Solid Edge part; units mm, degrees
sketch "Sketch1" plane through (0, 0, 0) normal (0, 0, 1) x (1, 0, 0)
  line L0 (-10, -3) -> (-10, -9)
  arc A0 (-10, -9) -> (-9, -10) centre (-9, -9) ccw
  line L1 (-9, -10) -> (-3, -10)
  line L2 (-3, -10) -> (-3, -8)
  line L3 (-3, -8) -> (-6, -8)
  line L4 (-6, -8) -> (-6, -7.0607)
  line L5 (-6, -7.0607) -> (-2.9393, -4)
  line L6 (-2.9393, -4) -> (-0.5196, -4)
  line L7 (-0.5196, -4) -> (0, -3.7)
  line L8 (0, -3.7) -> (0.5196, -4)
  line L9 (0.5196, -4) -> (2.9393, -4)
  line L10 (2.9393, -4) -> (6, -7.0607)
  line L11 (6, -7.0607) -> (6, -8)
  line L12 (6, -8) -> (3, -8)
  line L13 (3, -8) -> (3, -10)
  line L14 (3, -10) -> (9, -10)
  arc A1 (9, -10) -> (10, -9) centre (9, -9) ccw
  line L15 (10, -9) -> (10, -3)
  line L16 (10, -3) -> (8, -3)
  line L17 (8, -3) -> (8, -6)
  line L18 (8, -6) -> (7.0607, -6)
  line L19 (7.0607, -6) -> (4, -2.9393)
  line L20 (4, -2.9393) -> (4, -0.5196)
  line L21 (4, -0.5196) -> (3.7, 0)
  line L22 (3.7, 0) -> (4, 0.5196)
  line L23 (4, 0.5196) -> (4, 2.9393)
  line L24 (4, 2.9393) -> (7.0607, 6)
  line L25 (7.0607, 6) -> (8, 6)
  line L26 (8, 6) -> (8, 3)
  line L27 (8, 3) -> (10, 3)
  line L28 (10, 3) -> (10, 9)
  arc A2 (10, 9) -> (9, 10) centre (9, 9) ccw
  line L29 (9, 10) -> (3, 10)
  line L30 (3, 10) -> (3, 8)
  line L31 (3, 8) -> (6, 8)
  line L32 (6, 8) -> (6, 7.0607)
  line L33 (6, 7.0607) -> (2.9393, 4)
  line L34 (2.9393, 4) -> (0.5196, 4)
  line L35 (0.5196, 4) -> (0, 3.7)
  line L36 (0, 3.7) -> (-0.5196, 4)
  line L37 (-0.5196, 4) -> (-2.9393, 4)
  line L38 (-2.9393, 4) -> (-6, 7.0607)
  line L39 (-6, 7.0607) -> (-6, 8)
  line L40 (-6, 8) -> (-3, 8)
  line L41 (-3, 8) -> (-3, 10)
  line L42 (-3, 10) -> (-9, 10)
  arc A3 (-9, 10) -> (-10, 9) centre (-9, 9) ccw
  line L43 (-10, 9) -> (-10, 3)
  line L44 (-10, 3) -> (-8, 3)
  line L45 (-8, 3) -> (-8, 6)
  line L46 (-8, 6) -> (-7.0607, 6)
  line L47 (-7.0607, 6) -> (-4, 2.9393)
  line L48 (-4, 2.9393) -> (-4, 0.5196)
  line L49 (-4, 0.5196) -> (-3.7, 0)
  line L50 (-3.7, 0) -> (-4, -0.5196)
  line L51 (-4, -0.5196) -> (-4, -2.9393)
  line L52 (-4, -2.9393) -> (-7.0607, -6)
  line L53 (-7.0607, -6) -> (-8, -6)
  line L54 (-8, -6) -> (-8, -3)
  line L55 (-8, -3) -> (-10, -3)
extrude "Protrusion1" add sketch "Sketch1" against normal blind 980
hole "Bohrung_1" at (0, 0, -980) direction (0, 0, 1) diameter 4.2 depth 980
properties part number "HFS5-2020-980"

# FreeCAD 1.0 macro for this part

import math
import FreeCAD as App
import Part
import Sketcher
from FreeCAD import Vector
Q = App.Units.Quantity

doc = App.newDocument("Part")
params = doc.addObject("Spreadsheet::Sheet", "Params")
for row, (alias, value) in enumerate([
    ("sketch1_radius", "1 mm"),
    ("sketch1_width", "2 mm"),
    ("sketch1_width2", "6 mm"),
    ("sketch1_width3", "3 mm"),
    ("sketch1_length", "0.6 mm"),
    ("pad1_length", "980 mm"),
    ("sketch2_diameter", "4.2 mm"),
    ("hole_diameter", "4.2 mm"),
    ("hole_depth", "980 mm"),
], start=1):
    params.set(f"A{row}", alias)
    params.set(f"B{row}", "=" + value)
    params.setAlias(f"B{row}", alias)

body = doc.addObject("PartDesign::Body", "Body")

sketch1 = body.newObject("Sketcher::SketchObject", "Sketch")
sketch1.AttachmentSupport = (doc.getObject("XY_Plane"), [""])
sketch1.MapMode = "FlatFace"
sketch1.addGeometry([
    Part.LineSegment(Vector(-8, -3, 0), Vector(-10, -3, 0)),
    Part.LineSegment(Vector(-10, -3, 0), Vector(-10, -9, 0)),
    Part.ArcOfCircle(Part.Circle(Vector(-9, -9, 0), Vector(0, 0, 1), 1), math.radians(180), math.radians(270)),
    Part.LineSegment(Vector(-9, -10, 0), Vector(-3, -10, 0)),
    Part.LineSegment(Vector(-3, -10, 0), Vector(-3, -8, 0)),
    Part.LineSegment(Vector(-3, -8, 0), Vector(-6, -8, 0)),
    Part.LineSegment(Vector(-6, -8, 0), Vector(-6, -7.1, 0)),
    Part.LineSegment(Vector(-6, -7.1, 0), Vector(-2.9, -4, 0)),
    Part.LineSegment(Vector(-2.9, -4, 0), Vector(-0.5, -4, 0)),
    Part.LineSegment(Vector(-0.5, -4, 0), Vector(0, -3.7, 0)),
    Part.LineSegment(Vector(0, -3.7, 0), Vector(0.5, -4, 0)),
    Part.LineSegment(Vector(0.5, -4, 0), Vector(2.9, -4, 0)),
    Part.LineSegment(Vector(2.9, -4, 0), Vector(6, -7.1, 0)),
    Part.LineSegment(Vector(6, -7.1, 0), Vector(6, -8, 0)),
    Part.LineSegment(Vector(6, -8, 0), Vector(3, -8, 0)),
    Part.LineSegment(Vector(3, -8, 0), Vector(3, -10, 0)),
    Part.LineSegment(Vector(3, -10, 0), Vector(9, -10, 0)),
    Part.ArcOfCircle(Part.Circle(Vector(9, -9, 0), Vector(0, 0, 1), 1), math.radians(-90), math.radians(0)),
    Part.LineSegment(Vector(10, -9, 0), Vector(10, -3, 0)),
    Part.LineSegment(Vector(10, -3, 0), Vector(8, -3, 0)),
    Part.LineSegment(Vector(8, -3, 0), Vector(8, -6, 0)),
    Part.LineSegment(Vector(8, -6, 0), Vector(7.1, -6, 0)),
    Part.LineSegment(Vector(7.1, -6, 0), Vector(4, -2.9, 0)),
    Part.LineSegment(Vector(4, -2.9, 0), Vector(4, -0.5, 0)),
    Part.LineSegment(Vector(4, -0.5, 0), Vector(3.7, 0, 0)),
    Part.LineSegment(Vector(3.7, 0, 0), Vector(4, 0.5, 0)),
    Part.LineSegment(Vector(4, 0.5, 0), Vector(4, 2.9, 0)),
    Part.LineSegment(Vector(4, 2.9, 0), Vector(7.1, 6, 0)),
    Part.LineSegment(Vector(7.1, 6, 0), Vector(8, 6, 0)),
    Part.LineSegment(Vector(8, 6, 0), Vector(8, 3, 0)),
    Part.LineSegment(Vector(8, 3, 0), Vector(10, 3, 0)),
    Part.LineSegment(Vector(10, 3, 0), Vector(10, 9, 0)),
    Part.ArcOfCircle(Part.Circle(Vector(9, 9, 0), Vector(0, 0, 1), 1), math.radians(0), math.radians(90)),
    Part.LineSegment(Vector(9, 10, 0), Vector(3, 10, 0)),
    Part.LineSegment(Vector(3, 10, 0), Vector(3, 8, 0)),
    Part.LineSegment(Vector(3, 8, 0), Vector(6, 8, 0)),
    Part.LineSegment(Vector(6, 8, 0), Vector(6, 7.1, 0)),
    Part.LineSegment(Vector(6, 7.1, 0), Vector(2.9, 4, 0)),
    Part.LineSegment(Vector(2.9, 4, 0), Vector(0.5, 4, 0)),
    Part.LineSegment(Vector(0.5, 4, 0), Vector(0, 3.7, 0)),
    Part.LineSegment(Vector(0, 3.7, 0), Vector(-0.5, 4, 0)),
    Part.LineSegment(Vector(-0.5, 4, 0), Vector(-2.9, 4, 0)),
    Part.LineSegment(Vector(-2.9, 4, 0), Vector(-6, 7.1, 0)),
    Part.LineSegment(Vector(-6, 7.1, 0), Vector(-6, 8, 0)),
    Part.LineSegment(Vector(-6, 8, 0), Vector(-3, 8, 0)),
    Part.LineSegment(Vector(-3, 8, 0), Vector(-3, 10, 0)),
    Part.LineSegment(Vector(-3, 10, 0), Vector(-9, 10, 0)),
    Part.ArcOfCircle(Part.Circle(Vector(-9, 9, 0), Vector(0, 0, 1), 1), math.radians(90), math.radians(180)),
    Part.LineSegment(Vector(-10, 9, 0), Vector(-10, 3, 0)),
    Part.LineSegment(Vector(-10, 3, 0), Vector(-8, 3, 0)),
    Part.LineSegment(Vector(-8, 3, 0), Vector(-8, 6, 0)),
    Part.LineSegment(Vector(-8, 6, 0), Vector(-7.1, 6, 0)),
    Part.LineSegment(Vector(-7.1, 6, 0), Vector(-4, 2.9, 0)),
    Part.LineSegment(Vector(-4, 2.9, 0), Vector(-4, 0.5, 0)),
    Part.LineSegment(Vector(-4, 0.5, 0), Vector(-3.7, 0, 0)),
    Part.LineSegment(Vector(-3.7, 0, 0), Vector(-4, -0.5, 0)),
    Part.LineSegment(Vector(-4, -0.5, 0), Vector(-4, -2.9, 0)),
    Part.LineSegment(Vector(-4, -2.9, 0), Vector(-7.1, -6, 0)),
    Part.LineSegment(Vector(-7.1, -6, 0), Vector(-8, -6, 0)),
    Part.LineSegment(Vector(-8, -6, 0), Vector(-8, -3, 0)),
], False)
sketch1.addConstraint([
    Sketcher.Constraint("Coincident", 0, 2, 1, 1),
    Sketcher.Constraint("Tangent", 1, 2, 2, 1),
    Sketcher.Constraint("Tangent", 2, 2, 3, 1),
    Sketcher.Constraint("Coincident", 3, 2, 4, 1),
    Sketcher.Constraint("Coincident", 4, 2, 5, 1),
    Sketcher.Constraint("Coincident", 5, 2, 6, 1),
    Sketcher.Constraint("Coincident", 6, 2, 7, 1),
    Sketcher.Constraint("Coincident", 7, 2, 8, 1),
    Sketcher.Constraint("Coincident", 8, 2, 9, 1),
    Sketcher.Constraint("Coincident", 9, 2, 10, 1),
    Sketcher.Constraint("Coincident", 10, 2, 11, 1),
    Sketcher.Constraint("Coincident", 11, 2, 12, 1),
    Sketcher.Constraint("Coincident", 12, 2, 13, 1),
    Sketcher.Constraint("Coincident", 13, 2, 14, 1),
    Sketcher.Constraint("Coincident", 14, 2, 15, 1),
    Sketcher.Constraint("Coincident", 15, 2, 16, 1),
    Sketcher.Constraint("Tangent", 16, 2, 17, 1),
    Sketcher.Constraint("Tangent", 17, 2, 18, 1),
    Sketcher.Constraint("Coincident", 18, 2, 19, 1),
    Sketcher.Constraint("Coincident", 19, 2, 20, 1),
    Sketcher.Constraint("Coincident", 20, 2, 21, 1),
    Sketcher.Constraint("Coincident", 21, 2, 22, 1),
    Sketcher.Constraint("Coincident", 22, 2, 23, 1),
    Sketcher.Constraint("Coincident", 23, 2, 24, 1),
    Sketcher.Constraint("Coincident", 24, 2, 25, 1),
    Sketcher.Constraint("Coincident", 25, 2, 26, 1),
    Sketcher.Constraint("Coincident", 26, 2, 27, 1),
    Sketcher.Constraint("Coincident", 27, 2, 28, 1),
    Sketcher.Constraint("Coincident", 28, 2, 29, 1),
    Sketcher.Constraint("Coincident", 29, 2, 30, 1),
    Sketcher.Constraint("Coincident", 30, 2, 31, 1),
    Sketcher.Constraint("Tangent", 31, 2, 32, 1),
    Sketcher.Constraint("Tangent", 32, 2, 33, 1),
    Sketcher.Constraint("Coincident", 33, 2, 34, 1),
    Sketcher.Constraint("Coincident", 34, 2, 35, 1),
    Sketcher.Constraint("Coincident", 35, 2, 36, 1),
    Sketcher.Constraint("Coincident", 36, 2, 37, 1),
    Sketcher.Constraint("Coincident", 37, 2, 38, 1),
    Sketcher.Constraint("Coincident", 38, 2, 39, 1),
    Sketcher.Constraint("Coincident", 39, 2, 40, 1),
    Sketcher.Constraint("Coincident", 40, 2, 41, 1),
    Sketcher.Constraint("Coincident", 41, 2, 42, 1),
    Sketcher.Constraint("Coincident", 42, 2, 43, 1),
    Sketcher.Constraint("Coincident", 43, 2, 44, 1),
    Sketcher.Constraint("Coincident", 44, 2, 45, 1),
    Sketcher.Constraint("Coincident", 45, 2, 46, 1),
    Sketcher.Constraint("Tangent", 46, 2, 47, 1),
    Sketcher.Constraint("Tangent", 47, 2, 48, 1),
    Sketcher.Constraint("Coincident", 48, 2, 49, 1),
    Sketcher.Constraint("Coincident", 49, 2, 50, 1),
    Sketcher.Constraint("Coincident", 50, 2, 51, 1),
    Sketcher.Constraint("Coincident", 51, 2, 52, 1),
    Sketcher.Constraint("Coincident", 52, 2, 53, 1),
    Sketcher.Constraint("Coincident", 53, 2, 54, 1),
    Sketcher.Constraint("Coincident", 54, 2, 55, 1),
    Sketcher.Constraint("Coincident", 55, 2, 56, 1),
    Sketcher.Constraint("Coincident", 56, 2, 57, 1),
    Sketcher.Constraint("Coincident", 57, 2, 58, 1),
    Sketcher.Constraint("Coincident", 58, 2, 59, 1),
    Sketcher.Constraint("Coincident", 59, 2, 0, 1),
    Sketcher.Constraint("Horizontal", 0),
    Sketcher.Constraint("Vertical", 1),
    Sketcher.Constraint("Horizontal", 3),
    Sketcher.Constraint("Vertical", 4),
    Sketcher.Constraint("Horizontal", 5),
    Sketcher.Constraint("Vertical", 6),
    Sketcher.Constraint("Horizontal", 8),
    Sketcher.Constraint("Horizontal", 11),
    Sketcher.Constraint("Vertical", 13),
    Sketcher.Constraint("Horizontal", 14),
    Sketcher.Constraint("Vertical", 15),
    Sketcher.Constraint("Horizontal", 16),
    Sketcher.Constraint("Vertical", 18),
    Sketcher.Constraint("Horizontal", 19),
    Sketcher.Constraint("Vertical", 20),
    Sketcher.Constraint("Horizontal", 21),
    Sketcher.Constraint("Vertical", 23),
    Sketcher.Constraint("Vertical", 26),
    Sketcher.Constraint("Horizontal", 28),
    Sketcher.Constraint("Vertical", 29),
    Sketcher.Constraint("Horizontal", 30),
    Sketcher.Constraint("Vertical", 31),
    Sketcher.Constraint("Horizontal", 33),
    Sketcher.Constraint("Vertical", 34),
    Sketcher.Constraint("Horizontal", 35),
    Sketcher.Constraint("Vertical", 36),
    Sketcher.Constraint("Horizontal", 38),
    Sketcher.Constraint("Horizontal", 41),
    Sketcher.Constraint("Vertical", 43),
    Sketcher.Constraint("Horizontal", 44),
    Sketcher.Constraint("Vertical", 45),
    Sketcher.Constraint("Horizontal", 46),
    Sketcher.Constraint("Vertical", 48),
    Sketcher.Constraint("Horizontal", 49),
    Sketcher.Constraint("Vertical", 50),
    Sketcher.Constraint("Horizontal", 51),
    Sketcher.Constraint("Vertical", 53),
    Sketcher.Constraint("Vertical", 56),
    Sketcher.Constraint("Horizontal", 58),
    Sketcher.Constraint("Vertical", 59),
    Sketcher.Constraint("Equal", 2, 17),
    Sketcher.Constraint("Equal", 17, 32),
    Sketcher.Constraint("Equal", 32, 47),
    Sketcher.Constraint("Symmetric", 2, 3, 32, 3, -1, 1),
    Sketcher.Constraint("Symmetric", 17, 3, 47, 3, -1, 1),
    Sketcher.Constraint("Symmetric", 4, 2, 34, 2, -1, 1),
    Sketcher.Constraint("Symmetric", 6, 2, 36, 2, -1, 1),
    Sketcher.Constraint("Symmetric", 7, 2, 37, 2, -1, 1),
    Sketcher.Constraint("Symmetric", 9, 2, 39, 2, -1, 1),
    Sketcher.Constraint("Symmetric", 10, 2, 40, 2, -1, 1),
    Sketcher.Constraint("Symmetric", 12, 2, 42, 2, -1, 1),
    Sketcher.Constraint("Symmetric", 14, 2, 44, 2, -1, 1),
    Sketcher.Constraint("Symmetric", 19, 2, 49, 2, -1, 1),
    Sketcher.Constraint("Symmetric", 21, 2, 51, 2, -1, 1),
    Sketcher.Constraint("Symmetric", 22, 2, 52, 2, -1, 1),
    Sketcher.Constraint("Symmetric", 24, 2, 54, 2, -1, 1),
    Sketcher.Constraint("Symmetric", 25, 2, 55, 2, -1, 1),
    Sketcher.Constraint("Symmetric", 27, 2, 57, 2, -1, 1),
    Sketcher.Constraint("Symmetric", 29, 2, 59, 2, -1, 1),
    Sketcher.Constraint("Symmetric", 2, 3, 17, 3, -2),
    Sketcher.Constraint("Symmetric", 8, 2, 10, 2, -2),
    Sketcher.Constraint("Symmetric", 6, 2, 12, 2, -2),
    Sketcher.Constraint("Symmetric", 4, 2, 14, 2, -2),
    Sketcher.Constraint("Symmetric", 29, 2, 49, 2, -2),
    Sketcher.Constraint("Symmetric", 27, 2, 51, 2, -2),
    Sketcher.Constraint("Symmetric", 26, 2, 52, 2, -2),
    Sketcher.Constraint("PointOnObject", 9, 2, -2),
    Sketcher.Constraint("PointOnObject", 24, 2, -1),
    Sketcher.Constraint("Perpendicular", 7, 12),
    Sketcher.Constraint("Parallel", 12, 22),
    Sketcher.Constraint("Perpendicular", 9, 24),
    Sketcher.Constraint("Perpendicular", 10, 25),
    Sketcher.Constraint("Perpendicular", 22, 27),
    Sketcher.Constraint("Perpendicular", 24, 39),
    Sketcher.Constraint("Perpendicular", 37, 42),
    Sketcher.Constraint("Perpendicular", 39, 54),
    Sketcher.Constraint("Perpendicular", 52, 57),
    Sketcher.Constraint("Equal", 46, 1),
    Sketcher.Constraint("Equal", 49, 4),
    Sketcher.Constraint("Equal", 58, 6),
    Sketcher.Constraint("Equal", 44, 20),
    Sketcher.Constraint("Equal", 41, 23),
    Sketcher.Constraint("Equal", 12, 22),
    Sketcher.Constraint("Equal", 10, 24),
    Sketcher.Constraint("Radius", 2, Q("1 mm")),
    Sketcher.Constraint("DistanceX", 0, 2, 0, 1, Q("2 mm")),
    Sketcher.Constraint("DistanceX", 3, 1, 3, 2, Q("6 mm")),
    Sketcher.Constraint("DistanceX", 5, 2, 5, 1, Q("3 mm")),
    Sketcher.Constraint("Angle", 9, Q("30.0007 deg")),
    Sketcher.Constraint("DistanceX", 2, 3, -1, 1, Q("9 mm")),
    Sketcher.Constraint("DistanceY", 7, 2, -1, 1, Q("4 mm")),
    Sketcher.Constraint("Distance", 9, Q("0.6 mm")),
    Sketcher.Constraint("DistanceX", 8, 1, 8, 2, Q("2.4197 mm")),
])
sketch1.setExpression("Constraints[144]", "Params.sketch1_radius")
sketch1.setExpression("Constraints[145]", "Params.sketch1_width")
sketch1.setExpression("Constraints[146]", "Params.sketch1_width2")
sketch1.setExpression("Constraints[147]", "Params.sketch1_width3")
sketch1.setExpression("Constraints[151]", "Params.sketch1_length")
pad1 = body.newObject("PartDesign::Pad", "Pad")
pad1.Profile = sketch1
pad1.setExpression("Length", "Params.pad1_length")
pad1.Reversed = True

sketch2 = body.newObject("Sketcher::SketchObject", "Sketch001")
sketch2.AttachmentSupport = (doc.getObject("XY_Plane"), [""])
sketch2.MapMode = "FlatFace"
sketch2.AttachmentOffset = App.Placement(Vector(0, 0, -980), App.Rotation())
sketch2.addGeometry(Part.Circle(Vector(0, 0, 0), Vector(0, 0, 1), 2.1), False)
sketch2.addConstraint([
    Sketcher.Constraint("Coincident", 0, 3, -1, 1),
    Sketcher.Constraint("Diameter", 0, Q("4.2 mm")),
])
sketch2.setExpression("Constraints[1]", "Params.sketch2_diameter")
doc.recompute()
hole = body.newObject("PartDesign::Hole", "Hole")
hole.Profile = sketch2
hole.ThreadType = "None"
hole.setExpression("Diameter", "Params.hole_diameter")
hole.DepthType = "Dimension"
hole.setExpression("Depth", "Params.hole_depth")
hole.DrillPoint = "Flat"
hole.Reversed = True

doc.recompute()
